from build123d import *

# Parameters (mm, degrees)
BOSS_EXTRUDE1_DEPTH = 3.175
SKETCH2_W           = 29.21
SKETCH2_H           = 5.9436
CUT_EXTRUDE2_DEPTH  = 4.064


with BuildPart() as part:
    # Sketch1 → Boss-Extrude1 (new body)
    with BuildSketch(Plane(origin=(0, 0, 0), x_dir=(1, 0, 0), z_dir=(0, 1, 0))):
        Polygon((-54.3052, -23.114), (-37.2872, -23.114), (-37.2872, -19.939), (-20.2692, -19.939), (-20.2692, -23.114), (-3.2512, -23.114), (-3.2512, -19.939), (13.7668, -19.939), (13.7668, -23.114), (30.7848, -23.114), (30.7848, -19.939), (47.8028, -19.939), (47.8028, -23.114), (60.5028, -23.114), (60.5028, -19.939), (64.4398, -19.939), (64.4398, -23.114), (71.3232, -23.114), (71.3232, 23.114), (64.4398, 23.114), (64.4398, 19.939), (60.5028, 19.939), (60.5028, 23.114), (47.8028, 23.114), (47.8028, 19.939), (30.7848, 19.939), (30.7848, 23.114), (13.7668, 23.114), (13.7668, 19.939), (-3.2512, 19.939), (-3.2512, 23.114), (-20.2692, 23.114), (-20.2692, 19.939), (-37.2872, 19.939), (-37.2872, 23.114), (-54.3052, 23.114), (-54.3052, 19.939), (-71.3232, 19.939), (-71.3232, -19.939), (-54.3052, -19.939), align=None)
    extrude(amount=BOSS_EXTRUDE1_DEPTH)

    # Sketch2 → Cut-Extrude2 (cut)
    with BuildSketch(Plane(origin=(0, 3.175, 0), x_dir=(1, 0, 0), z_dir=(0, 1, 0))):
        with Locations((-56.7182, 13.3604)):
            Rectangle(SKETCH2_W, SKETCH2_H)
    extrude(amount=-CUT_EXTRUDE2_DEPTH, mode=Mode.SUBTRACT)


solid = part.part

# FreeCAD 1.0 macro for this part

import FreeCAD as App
import Part
import Sketcher

V = App.Vector
Q = App.Units.Quantity

doc = App.newDocument("Part")
params = doc.addObject("Spreadsheet::Sheet", "Params")
for row, (alias, value) in enumerate([
    ("sketch1_width", "0.5 in"),
    ("sketch1_width2", "0.67 in"),
    ("sketch1_height", "1.82 in"),
    ("sketch1_height2", "1.57 in"),
    ("sketch1_width3", "0.155 in"),
    ("pad1_length", "0.125 in"),
    ("sketch2_width", "1.15 in"),
    ("sketch2_height", "0.234 in"),
    ("pocket1_length", "0.16 in"),
], start=1):
    params.set(f"A{row}", alias)
    params.set(f"B{row}", "=" + value)
    params.setAlias(f"B{row}", alias)

body = doc.addObject("PartDesign::Body", "Body")

# Sketch on XZ plane
sketch1 = body.newObject("Sketcher::SketchObject", "Sketch")
sketch1.AttachmentSupport = (doc.getObject("XZ_Plane"), [""])
sketch1.MapMode = "FlatFace"
sketch1.addGeometry([
    Part.LineSegment(V(-54.3052, 23.114, 0), V(-37.2872, 23.114, 0)),  # 0
    Part.LineSegment(V(-37.2872, 23.114, 0), V(-37.2872, 19.939, 0)),  # 1
    Part.LineSegment(V(-37.2872, 19.939, 0), V(-20.2692, 19.939, 0)),  # 2
    Part.LineSegment(V(-20.2692, 19.939, 0), V(-20.2692, 23.114, 0)),  # 3
    Part.LineSegment(V(-20.2692, 23.114, 0), V(-3.2512, 23.114, 0)),  # 4
    Part.LineSegment(V(-3.2512, 23.114, 0), V(-3.2512, 19.939, 0)),  # 5
    Part.LineSegment(V(-3.2512, 19.939, 0), V(13.7668, 19.939, 0)),  # 6
    Part.LineSegment(V(13.7668, 19.939, 0), V(13.7668, 23.114, 0)),  # 7
    Part.LineSegment(V(13.7668, 23.114, 0), V(30.7848, 23.114, 0)),  # 8
    Part.LineSegment(V(30.7848, 23.114, 0), V(30.7848, 19.939, 0)),  # 9
    Part.LineSegment(V(30.7848, 19.939, 0), V(47.8028, 19.939, 0)),  # 10
    Part.LineSegment(V(47.8028, 19.939, 0), V(47.8028, 23.114, 0)),  # 11
    Part.LineSegment(V(47.8028, 23.114, 0), V(60.5028, 23.114, 0)),  # 12
    Part.LineSegment(V(60.5028, 23.114, 0), V(60.5028, 19.939, 0)),  # 13
    Part.LineSegment(V(60.5028, 19.939, 0), V(64.4398, 19.939, 0)),  # 14
    Part.LineSegment(V(64.4398, 19.939, 0), V(64.4398, 23.114, 0)),  # 15
    Part.LineSegment(V(64.4398, 23.114, 0), V(71.3232, 23.114, 0)),  # 16
    Part.LineSegment(V(71.3232, 23.114, 0), V(71.3232, -23.114, 0)),  # 17
    Part.LineSegment(V(71.3232, -23.114, 0), V(64.4398, -23.114, 0)),  # 18
    Part.LineSegment(V(64.4398, -23.114, 0), V(64.4398, -19.939, 0)),  # 19
    Part.LineSegment(V(64.4398, -19.939, 0), V(60.5028, -19.939, 0)),  # 20
    Part.LineSegment(V(60.5028, -19.939, 0), V(60.5028, -23.114, 0)),  # 21
    Part.LineSegment(V(60.5028, -23.114, 0), V(47.8028, -23.114, 0)),  # 22
    Part.LineSegment(V(47.8028, -23.114, 0), V(47.8028, -19.939, 0)),  # 23
    Part.LineSegment(V(47.8028, -19.939, 0), V(30.7848, -19.939, 0)),  # 24
    Part.LineSegment(V(30.7848, -19.939, 0), V(30.7848, -23.114, 0)),  # 25
    Part.LineSegment(V(30.7848, -23.114, 0), V(13.7668, -23.114, 0)),  # 26
    Part.LineSegment(V(13.7668, -23.114, 0), V(13.7668, -19.939, 0)),  # 27
    Part.LineSegment(V(13.7668, -19.939, 0), V(-3.2512, -19.939, 0)),  # 28
    Part.LineSegment(V(-3.2512, -19.939, 0), V(-3.2512, -23.114, 0)),  # 29
    Part.LineSegment(V(-3.2512, -23.114, 0), V(-20.2692, -23.114, 0)),  # 30
    Part.LineSegment(V(-20.2692, -23.114, 0), V(-20.2692, -19.939, 0)),  # 31
    Part.LineSegment(V(-20.2692, -19.939, 0), V(-37.2872, -19.939, 0)),  # 32
    Part.LineSegment(V(-37.2872, -19.939, 0), V(-37.2872, -23.114, 0)),  # 33
    Part.LineSegment(V(-37.2872, -23.114, 0), V(-54.3052, -23.114, 0)),  # 34
    Part.LineSegment(V(-54.3052, -23.114, 0), V(-54.3052, -19.939, 0)),  # 35
    Part.LineSegment(V(-54.3052, -19.939, 0), V(-71.3232, -19.939, 0)),  # 36
    Part.LineSegment(V(-71.3232, -19.939, 0), V(-71.3232, 19.939, 0)),  # 37
    Part.LineSegment(V(-71.3232, 19.939, 0), V(-54.3052, 19.939, 0)),  # 38
    Part.LineSegment(V(-54.3052, 19.939, 0), V(-54.3052, 23.114, 0)),  # 39
], False)
sketch1.addConstraint([
    Sketcher.Constraint("Coincident", 0, 2, 1, 1),
    Sketcher.Constraint("Coincident", 1, 2, 2, 1),
    Sketcher.Constraint("Coincident", 2, 2, 3, 1),
    Sketcher.Constraint("Coincident", 3, 2, 4, 1),
    Sketcher.Constraint("Coincident", 4, 2, 5, 1),
    Sketcher.Constraint("Coincident", 5, 2, 6, 1),
    Sketcher.Constraint("Coincident", 6, 2, 7, 1),
    Sketcher.Constraint("Coincident", 7, 2, 8, 1),
    Sketcher.Constraint("Coincident", 8, 2, 9, 1),
    Sketcher.Constraint("Coincident", 9, 2, 10, 1),
    Sketcher.Constraint("Coincident", 10, 2, 11, 1),
    Sketcher.Constraint("Coincident", 11, 2, 12, 1),
    Sketcher.Constraint("Coincident", 12, 2, 13, 1),
    Sketcher.Constraint("Coincident", 13, 2, 14, 1),
    Sketcher.Constraint("Coincident", 14, 2, 15, 1),
    Sketcher.Constraint("Coincident", 15, 2, 16, 1),
    Sketcher.Constraint("Coincident", 16, 2, 17, 1),
    Sketcher.Constraint("Coincident", 17, 2, 18, 1),
    Sketcher.Constraint("Coincident", 18, 2, 19, 1),
    Sketcher.Constraint("Coincident", 19, 2, 20, 1),
    Sketcher.Constraint("Coincident", 20, 2, 21, 1),
    Sketcher.Constraint("Coincident", 21, 2, 22, 1),
    Sketcher.Constraint("Coincident", 22, 2, 23, 1),
    Sketcher.Constraint("Coincident", 23, 2, 24, 1),
    Sketcher.Constraint("Coincident", 24, 2, 25, 1),
    Sketcher.Constraint("Coincident", 25, 2, 26, 1),
    Sketcher.Constraint("Coincident", 26, 2, 27, 1),
    Sketcher.Constraint("Coincident", 27, 2, 28, 1),
    Sketcher.Constraint("Coincident", 28, 2, 29, 1),
    Sketcher.Constraint("Coincident", 29, 2, 30, 1),
    Sketcher.Constraint("Coincident", 30, 2, 31, 1),
    Sketcher.Constraint("Coincident", 31, 2, 32, 1),
    Sketcher.Constraint("Coincident", 32, 2, 33, 1),
    Sketcher.Constraint("Coincident", 33, 2, 34, 1),
    Sketcher.Constraint("Coincident", 34, 2, 35, 1),
    Sketcher.Constraint("Coincident", 35, 2, 36, 1),
    Sketcher.Constraint("Coincident", 36, 2, 37, 1),
    Sketcher.Constraint("Coincident", 37, 2, 38, 1),
    Sketcher.Constraint("Coincident", 38, 2, 39, 1),
    Sketcher.Constraint("Coincident", 39, 2, 0, 1),
    Sketcher.Constraint("Horizontal", 0),
    Sketcher.Constraint("Vertical", 1),
    Sketcher.Constraint("Horizontal", 2),
    Sketcher.Constraint("Vertical", 3),
    Sketcher.Constraint("Horizontal", 4),
    Sketcher.Constraint("Vertical", 5),
    Sketcher.Constraint("Horizontal", 6),
    Sketcher.Constraint("Vertical", 7),
    Sketcher.Constraint("Horizontal", 8),
    Sketcher.Constraint("Vertical", 9),
    Sketcher.Constraint("Horizontal", 10),
    Sketcher.Constraint("Vertical", 11),
    Sketcher.Constraint("Horizontal", 12),
    Sketcher.Constraint("Vertical", 13),
    Sketcher.Constraint("Horizontal", 14),
    Sketcher.Constraint("Vertical", 15),
    Sketcher.Constraint("Horizontal", 16),
    Sketcher.Constraint("Vertical", 17),
    Sketcher.Constraint("Horizontal", 18),
    Sketcher.Constraint("Vertical", 19),
    Sketcher.Constraint("Horizontal", 20),
    Sketcher.Constraint("Vertical", 21),
    Sketcher.Constraint("Horizontal", 22),
    Sketcher.Constraint("Vertical", 23),
    Sketcher.Constraint("Horizontal", 24),
    Sketcher.Constraint("Vertical", 25),
    Sketcher.Constraint("Horizontal", 26),
    Sketcher.Constraint("Vertical", 27),
    Sketcher.Constraint("Horizontal", 28),
    Sketcher.Constraint("Vertical", 29),
    Sketcher.Constraint("Horizontal", 30),
    Sketcher.Constraint("Vertical", 31),
    Sketcher.Constraint("Horizontal", 32),
    Sketcher.Constraint("Vertical", 33),
    Sketcher.Constraint("Horizontal", 34),
    Sketcher.Constraint("Vertical", 35),
    Sketcher.Constraint("Horizontal", 36),
    Sketcher.Constraint("Vertical", 37),
    Sketcher.Constraint("Horizontal", 38),
    Sketcher.Constraint("Vertical", 39),
    Sketcher.Constraint("Symmetric", 15, 2, 18, 2, -1),
    Sketcher.Constraint("Symmetric", 13, 2, 20, 2, -1),
    Sketcher.Constraint("Symmetric", 11, 2, 22, 2, -1),
    Sketcher.Constraint("Symmetric", 9, 2, 24, 2, -1),
    Sketcher.Constraint("Symmetric", 7, 2, 26, 2, -1),
    Sketcher.Constraint("Symmetric", 5, 2, 28, 2, -1),
    Sketcher.Constraint("Symmetric", 3, 2, 30, 2, -1),
    Sketcher.Constraint("Symmetric", 1, 2, 32, 2, -1),
    Sketcher.Constraint("Symmetric", 35, 2, 38, 2, -1),
    Sketcher.Constraint("Horizontal", 0, 2, 3, 2),
    Sketcher.Constraint("Horizontal", 2, 2, 5, 2),
    Sketcher.Constraint("Horizontal", 4, 2, 7, 2),
    Sketcher.Constraint("Horizontal", 6, 2, 9, 2),
    Sketcher.Constraint("Horizontal", 8, 2, 11, 2),
    Sketcher.Constraint("Horizontal", 10, 2, 13, 2),
    Sketcher.Constraint("Horizontal", 12, 2, 15, 2),
    Sketcher.Constraint("Horizontal", 30, 2, 33, 2),
    Sketcher.Constraint("Horizontal", 32, 2, 35, 2),
    Sketcher.Constraint("Equal", 0, 2),
    Sketcher.Constraint("Equal", 2, 4),
    Sketcher.Constraint("Equal", 4, 6),
    Sketcher.Constraint("Equal", 6, 8),
    Sketcher.Constraint("Equal", 8, 10),
    Sketcher.Constraint("Equal", 34, 36),
    Sketcher.Constraint("DistanceX", 12, 1, 12, 2, Q("0.5 in")),
    Sketcher.Constraint("DistanceX", 0, 1, 0, 2, Q("0.67 in")),
    Sketcher.Constraint("DistanceY", 17, 2, 17, 1, Q("1.82 in")),
    Sketcher.Constraint("DistanceY", 37, 1, 37, 2, Q("1.57 in")),
    Sketcher.Constraint("DistanceX", 14, 1, 14, 2, Q("0.155 in")),
    Sketcher.Constraint("DistanceX", 16, 1, 16, 2, Q("0.271 in")),
    Sketcher.Constraint("DistanceX", 0, 2, -1, 1, Q("1.468 in")),
])
sketch1.setExpression("Constraints[104]", "Params.sketch1_width")
sketch1.setExpression("Constraints[105]", "Params.sketch1_width2")
sketch1.setExpression("Constraints[106]", "Params.sketch1_height")
sketch1.setExpression("Constraints[107]", "Params.sketch1_height2")
sketch1.setExpression("Constraints[108]", "Params.sketch1_width3")
pad1 = body.newObject("PartDesign::Pad", "Pad")
pad1.Profile = sketch1
pad1.setExpression("Length", "Params.pad1_length")
pad1.Reversed = True

# Sketch on XZ plane
sketch2 = body.newObject("Sketcher::SketchObject", "Sketch001")
sketch2.AttachmentSupport = (doc.getObject("XZ_Plane"), [""])
sketch2.MapMode = "FlatFace"
sketch2.AttachmentOffset = App.Placement(V(0, 0, -0.125 * 25.4), App.Rotation())
sketch2.addGeometry([
    Part.LineSegment(V(-71.3232, -16.3322, 0), V(-71.3232, -10.3886, 0)),
    Part.LineSegment(V(-71.3232, -10.3886, 0), V(-42.1132, -10.3886, 0)),
    Part.LineSegment(V(-42.1132, -10.3886, 0), V(-42.1132, -16.3322, 0)),
    Part.LineSegment(V(-42.1132, -16.3322, 0), V(-71.3232, -16.3322, 0)),
], False)
sketch2.addConstraint([
    Sketcher.Constraint("Coincident", 0, 2, 1, 1),
    Sketcher.Constraint("Coincident", 1, 2, 2, 1),
    Sketcher.Constraint("Coincident", 2, 2, 3, 1),
    Sketcher.Constraint("Coincident", 3, 2, 0, 1),
    Sketcher.Constraint("Vertical", 0),
    Sketcher.Constraint("Horizontal", 1),
    Sketcher.Constraint("Vertical", 2),
    Sketcher.Constraint("Horizontal", 3),
    Sketcher.Constraint("DistanceX", 1, 1, 1, 2, Q("1.15 in")),
    Sketcher.Constraint("DistanceY", 0, 1, 0, 2, Q("0.234 in")),
    Sketcher.Constraint("DistanceX", 0, 2, -1, 1, Q("2.808 in")),
    Sketcher.Constraint("DistanceY", 0, 2, -1, 1, Q("0.409 in")),
])
sketch2.setExpression("Constraints[8]", "Params.sketch2_width")
sketch2.setExpression("Constraints[9]", "Params.sketch2_height")
pocket1 = body.newObject("PartDesign::Pocket", "Pocket")
pocket1.Profile = sketch2
pocket1.setExpression("Length", "Params.pocket1_length")
pocket1.Reversed = True

doc.recompute()
